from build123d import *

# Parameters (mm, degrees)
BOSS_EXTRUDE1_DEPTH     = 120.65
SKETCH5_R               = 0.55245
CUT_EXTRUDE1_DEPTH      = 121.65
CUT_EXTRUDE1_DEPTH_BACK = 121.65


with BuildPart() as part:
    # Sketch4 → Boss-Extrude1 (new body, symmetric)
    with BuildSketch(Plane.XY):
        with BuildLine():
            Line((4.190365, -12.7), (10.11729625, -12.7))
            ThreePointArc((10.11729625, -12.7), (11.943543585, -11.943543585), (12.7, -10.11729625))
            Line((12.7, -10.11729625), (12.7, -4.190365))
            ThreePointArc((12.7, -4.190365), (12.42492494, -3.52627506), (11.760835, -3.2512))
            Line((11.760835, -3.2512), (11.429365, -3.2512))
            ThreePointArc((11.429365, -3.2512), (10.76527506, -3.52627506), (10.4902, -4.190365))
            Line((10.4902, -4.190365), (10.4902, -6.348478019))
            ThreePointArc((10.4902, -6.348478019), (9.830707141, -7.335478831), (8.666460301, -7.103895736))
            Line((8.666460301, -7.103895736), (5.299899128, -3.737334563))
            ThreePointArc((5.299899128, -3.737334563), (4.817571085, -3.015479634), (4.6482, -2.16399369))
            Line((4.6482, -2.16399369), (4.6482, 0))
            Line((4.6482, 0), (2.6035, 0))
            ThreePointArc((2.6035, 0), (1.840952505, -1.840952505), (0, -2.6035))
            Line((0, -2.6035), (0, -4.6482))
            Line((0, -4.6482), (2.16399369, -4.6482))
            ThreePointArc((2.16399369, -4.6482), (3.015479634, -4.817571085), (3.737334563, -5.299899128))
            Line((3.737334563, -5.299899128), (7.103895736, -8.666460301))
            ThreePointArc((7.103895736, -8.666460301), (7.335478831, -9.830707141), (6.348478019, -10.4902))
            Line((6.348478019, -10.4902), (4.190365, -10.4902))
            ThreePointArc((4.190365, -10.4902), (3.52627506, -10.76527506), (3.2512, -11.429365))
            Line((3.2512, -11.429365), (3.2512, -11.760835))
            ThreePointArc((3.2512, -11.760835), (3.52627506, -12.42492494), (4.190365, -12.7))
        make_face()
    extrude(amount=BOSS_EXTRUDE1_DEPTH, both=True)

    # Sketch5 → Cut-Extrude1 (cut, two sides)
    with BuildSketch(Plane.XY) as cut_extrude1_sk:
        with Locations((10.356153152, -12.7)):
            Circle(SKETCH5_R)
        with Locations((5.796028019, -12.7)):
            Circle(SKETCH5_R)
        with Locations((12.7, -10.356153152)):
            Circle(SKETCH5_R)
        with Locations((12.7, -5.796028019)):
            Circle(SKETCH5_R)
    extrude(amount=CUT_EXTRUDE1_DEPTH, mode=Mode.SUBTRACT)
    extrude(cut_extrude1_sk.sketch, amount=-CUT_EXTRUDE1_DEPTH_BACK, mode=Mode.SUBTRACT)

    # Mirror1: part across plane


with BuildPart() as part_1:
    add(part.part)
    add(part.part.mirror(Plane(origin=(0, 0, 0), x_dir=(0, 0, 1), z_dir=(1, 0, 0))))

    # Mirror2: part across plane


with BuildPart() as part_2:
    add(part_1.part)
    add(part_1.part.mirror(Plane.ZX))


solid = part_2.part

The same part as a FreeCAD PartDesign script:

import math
import FreeCAD as App
import Part
import Sketcher
from FreeCAD import Vector
Q = App.Units.Quantity

doc = App.newDocument("Part")
body = doc.addObject("PartDesign::Body", "Body")

sketch1 = doc.addObject("Sketcher::SketchObject", "Sketch")
body.addObject(sketch1)
sketch1.AttachmentSupport = (doc.XY_Plane, [""])
sketch1.MapMode = "FlatFace"
sketch1.addGeometry([
    Part.LineSegment(Vector(4.19, -12.7, 0), Vector(10.12, -12.7, 0)),
    Part.ArcOfCircle(Part.Circle(Vector(10.12, -10.12, 0), Vector(0, 0, 1), 2.58), math.radians(-90), math.radians(0)),
    Part.LineSegment(Vector(12.7, -10.12, 0), Vector(12.7, -4.19, 0)),
    Part.ArcOfCircle(Part.Circle(Vector(11.76, -4.19, 0), Vector(0, 0, 1), 0.94), math.radians(0), math.radians(90)),
    Part.LineSegment(Vector(11.76, -3.25, 0), Vector(11.43, -3.25, 0)),
    Part.ArcOfCircle(Part.Circle(Vector(11.43, -4.19, 0), Vector(0, 0, 1), 0.94), math.radians(90), math.radians(180)),
    Part.LineSegment(Vector(10.49, -4.19, 0), Vector(10.49, -6.35, 0)),
    Part.ArcOfCircle(Part.Circle(Vector(9.42, -6.35, 0), Vector(0, 0, 1), 1.07), math.radians(-135), math.radians(0)),
    Part.LineSegment(Vector(8.67, -7.1, 0), Vector(5.3, -3.74, 0)),
    Part.ArcOfCircle(Part.Circle(Vector(6.87, -2.16, 0), Vector(0, 0, 1), 2.23), math.radians(-180), math.radians(-135)),
    Part.LineSegment(Vector(4.65, -2.16, 0), Vector(4.65, 0, 0)),
    Part.LineSegment(Vector(4.65, 0, 0), Vector(2.6, 0, 0)),
    Part.ArcOfCircle(Part.Circle(Vector(0, 0, 0), Vector(0, 0, 1), 2.6), math.radians(-90), math.radians(0)),
    Part.LineSegment(Vector(0, -2.6, 0), Vector(0, -4.65, 0)),
    Part.LineSegment(Vector(0, -4.65, 0), Vector(2.16, -4.65, 0)),
    Part.ArcOfCircle(Part.Circle(Vector(2.16, -6.87, 0), Vector(0, 0, 1), 2.23), math.radians(45), math.radians(90)),
    Part.LineSegment(Vector(3.74, -5.3, 0), Vector(7.1, -8.67, 0)),
    Part.ArcOfCircle(Part.Circle(Vector(6.35, -9.42, 0), Vector(0, 0, 1), 1.07), math.radians(-90), math.radians(45)),
    Part.LineSegment(Vector(6.35, -10.49, 0), Vector(4.19, -10.49, 0)),
    Part.ArcOfCircle(Part.Circle(Vector(4.19, -11.43, 0), Vector(0, 0, 1), 0.94), math.radians(90), math.radians(180)),
    Part.LineSegment(Vector(3.25, -11.43, 0), Vector(3.25, -11.76, 0)),
    Part.ArcOfCircle(Part.Circle(Vector(4.19, -11.76, 0), Vector(0, 0, 1), 0.94), math.radians(-180), math.radians(-90)),
], False)
sketch1.addConstraint([
    Sketcher.Constraint("Tangent", 0, 2, 1, 1),
    Sketcher.Constraint("Tangent", 1, 2, 2, 1),
    Sketcher.Constraint("Tangent", 2, 2, 3, 1),
    Sketcher.Constraint("Tangent", 3, 2, 4, 1),
    Sketcher.Constraint("Tangent", 4, 2, 5, 1),
    Sketcher.Constraint("Tangent", 5, 2, 6, 1),
    Sketcher.Constraint("Tangent", 6, 2, 7, 2),
    Sketcher.Constraint("Tangent", 7, 1, 8, 1),
    Sketcher.Constraint("Tangent", 8, 2, 9, 2),
    Sketcher.Constraint("Tangent", 9, 1, 10, 1),
    Sketcher.Constraint("Coincident", 10, 2, 11, 1),
    Sketcher.Constraint("Coincident", 11, 2, 12, 2),
    Sketcher.Constraint("Coincident", 12, 1, 13, 1),
    Sketcher.Constraint("Coincident", 13, 2, 14, 1),
    Sketcher.Constraint("Tangent", 14, 2, 15, 2),
    Sketcher.Constraint("Tangent", 15, 1, 16, 1),
    Sketcher.Constraint("Tangent", 16, 2, 17, 2),
    Sketcher.Constraint("Tangent", 17, 1, 18, 1),
    Sketcher.Constraint("Tangent", 18, 2, 19, 1),
    Sketcher.Constraint("Tangent", 19, 2, 20, 1),
    Sketcher.Constraint("Tangent", 20, 2, 21, 1),
    Sketcher.Constraint("Tangent", 21, 2, 0, 1),
    Sketcher.Constraint("Horizontal", 0),
    Sketcher.Constraint("Vertical", 2),
    Sketcher.Constraint("Horizontal", 4),
    Sketcher.Constraint("Vertical", 6),
    Sketcher.Constraint("Vertical", 10),
    Sketcher.Constraint("Horizontal", 11),
    Sketcher.Constraint("Vertical", 13),
    Sketcher.Constraint("Horizontal", 14),
    Sketcher.Constraint("Horizontal", 18),
    Sketcher.Constraint("Vertical", 20),
    Sketcher.Constraint("Coincident", 12, 3, -1, 1),
    Sketcher.Constraint("Equal", 3, 5),
    Sketcher.Constraint("Equal", 9, 15),
    Sketcher.Constraint("Equal", 7, 17),
    Sketcher.Constraint("Equal", 5, 19),
    Sketcher.Constraint("Equal", 19, 21),
    Sketcher.Constraint("PointOnObject", 10, 2, -1),
    Sketcher.Constraint("PointOnObject", 12, 1, -2),
    Sketcher.Constraint("Parallel", 8, 16),
    Sketcher.Constraint("Equal", 0, 2),
    Sketcher.Constraint("Equal", 18, 6),
    Sketcher.Constraint("Equal", 14, 10),
    Sketcher.Constraint("Equal", 11, 13),
    Sketcher.Constraint("Equal", 4, 20),
    Sketcher.Constraint("Equal", 8, 16),
    Sketcher.Constraint("DistanceY", 0, 2, -1, 1, Q("0.5 in")),
    Sketcher.Constraint("Radius", 9, Q("0.0876 in")),
    Sketcher.Constraint("Radius", 12, Q("0.1025 in")),
    Sketcher.Constraint("DistanceX", 9, 1, 5, 2, Q("0.23 in")),
    Sketcher.Constraint("DistanceX", 11, 2, 11, 1, Q("0.0805 in")),
    Sketcher.Constraint("DistanceY", 3, 2, -1, 1, Q("0.128 in")),
    Sketcher.Constraint("Radius", 7, 1.068322),
    Sketcher.Constraint("DistanceX", 17, 3, 7, 3, Q("0.121 in")),
    Sketcher.Constraint("Radius", 1, 2.582704),
    Sketcher.Constraint("Radius", 3, 0.939165),
])
pad1 = doc.addObject("PartDesign::Pad", "Pad")
body.addObject(pad1)
pad1.Profile = sketch1
pad1.Length = Q("9.5 in")
pad1.Midplane = True

sketch2 = doc.addObject("Sketcher::SketchObject", "Sketch001")
body.addObject(sketch2)
sketch2.AttachmentSupport = (doc.XY_Plane, [""])
sketch2.MapMode = "FlatFace"
sketch2.addGeometry([
    Part.Circle(Vector(10.4, -12.7, 0), Vector(0, 0, 1), 0.6),
    Part.Circle(Vector(5.8, -12.7, 0), Vector(0, 0, 1), 0.6),
    Part.Circle(Vector(12.7, -10.4, 0), Vector(0, 0, 1), 0.6),
    Part.Circle(Vector(12.7, -5.8, 0), Vector(0, 0, 1), 0.6),
], False)
sketch2.addConstraint([
    Sketcher.Constraint("Equal", 0, 1),
    Sketcher.Constraint("Equal", 1, 2),
    Sketcher.Constraint("Equal", 2, 3),
    Sketcher.Constraint("Horizontal", 0, 3, 1, 3),
    Sketcher.Constraint("Vertical", 2, 3, 3, 3),
    Sketcher.Constraint("Diameter", 0, Q("0.0435 in")),
    Sketcher.Constraint("DistanceY", 0, 3, -1, 1, Q("0.5 in")),
    Sketcher.Constraint("DistanceX", -1, 1, 2, 3, Q("0.5 in")),
    Sketcher.Constraint("DistanceX", -1, 1, 1, 3, 5.796028),
    Sketcher.Constraint("DistanceY", 3, 3, -1, 1, 5.796028),
    Sketcher.Constraint("DistanceX", -1, 1, 0, 3, 10.356153),
    Sketcher.Constraint("DistanceY", 2, 3, -1, 1, 10.356153),
])
pocket1 = doc.addObject("PartDesign::Pocket", "Pocket")
body.addObject(pocket1)
pocket1.Profile = sketch2
pocket1.Type = "ThroughAll"
pocket1.Midplane = True
body2 = doc.addObject("PartDesign::Body", "Body001")
doc.recompute()

body2.BaseFeature = body
doc.recompute()

mirroring = doc.addObject("Part::Mirroring", "Mirroring")
mirroring.Source = body
mirroring.Base = Vector(0, 0, 0)
mirroring.Normal = Vector(1, 0, 0)
body3 = doc.addObject("PartDesign::Body", "Body002")
body3.BaseFeature = mirroring
boolean = doc.addObject("PartDesign::Boolean", "Boolean")
body2.addObject(boolean)
boolean.Type = "Fuse"
boolean.addObjects([body3])
doc.recompute()
body4 = doc.addObject("PartDesign::Body", "Body003")
doc.recompute()

body4.BaseFeature = body2
doc.recompute()

mirroring2 = doc.addObject("Part::Mirroring", "Mirroring001")
mirroring2.Source = body2
mirroring2.Base = Vector(0, 0, 0)
mirroring2.Normal = Vector(0, 1, 0)
body5 = doc.addObject("PartDesign::Body", "Body004")
body5.BaseFeature = mirroring2
boolean2 = doc.addObject("PartDesign::Boolean", "Boolean001")
body4.addObject(boolean2)
boolean2.Type = "Fuse"
boolean2.addObjects([body5])
doc.recompute()
mirroring.Visibility = False
mirroring2.Visibility = False

doc.recompute()
